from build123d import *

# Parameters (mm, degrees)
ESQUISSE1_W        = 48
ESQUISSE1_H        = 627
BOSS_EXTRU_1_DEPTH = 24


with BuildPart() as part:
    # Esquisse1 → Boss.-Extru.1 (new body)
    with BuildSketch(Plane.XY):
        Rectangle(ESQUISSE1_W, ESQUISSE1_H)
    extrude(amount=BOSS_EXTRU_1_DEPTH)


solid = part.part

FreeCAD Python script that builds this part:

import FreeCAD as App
import Part
import Sketcher
from FreeCAD import Vector
Q = App.Units.Quantity


def add_polygon(sketch, points):
    """Adds a closed chain of lines whose ends are joined by coincident constraints."""
    first, n = sketch.GeometryCount, len(points)
    for a, b in zip(points, points[1:] + points[:1]):
        sketch.addGeometry(Part.LineSegment(App.Vector(*a, 0), App.Vector(*b, 0)), False)
    for i in range(n):
        sketch.addConstraint(Sketcher.Constraint("Coincident", first + i, 2, first + (i + 1) % n, 1))

doc = App.newDocument("Part")
body = doc.addObject("PartDesign::Body", "Body")

# Sketch on XY plane
sketch1 = body.newObject("Sketcher::SketchObject", "Sketch")
sketch1.AttachmentSupport = (doc.getObject("XY_Plane"), [""])
sketch1.MapMode = "FlatFace"
add_polygon(sketch1, [(-24, 314), (-24, -314), (24, -314), (24, 314)])  # lines 0-3
sketch1.addConstraint([
    Sketcher.Constraint("Vertical", 0),
    Sketcher.Constraint("Horizontal", 1),
    Sketcher.Constraint("Vertical", 2),
    Sketcher.Constraint("Horizontal", 3),
    Sketcher.Constraint("Symmetric", 0, 2, 2, 2, -1, 1),
    Sketcher.Constraint("DistanceX", 1, 1, 1, 2, Q("48 mm")),
    Sketcher.Constraint("DistanceY", 0, 2, 0, 1, Q("627 mm")),
])
pad1 = body.newObject("PartDesign::Pad", "Pad")
pad1.Profile = sketch1
pad1.Length = 24

doc.recompute()
